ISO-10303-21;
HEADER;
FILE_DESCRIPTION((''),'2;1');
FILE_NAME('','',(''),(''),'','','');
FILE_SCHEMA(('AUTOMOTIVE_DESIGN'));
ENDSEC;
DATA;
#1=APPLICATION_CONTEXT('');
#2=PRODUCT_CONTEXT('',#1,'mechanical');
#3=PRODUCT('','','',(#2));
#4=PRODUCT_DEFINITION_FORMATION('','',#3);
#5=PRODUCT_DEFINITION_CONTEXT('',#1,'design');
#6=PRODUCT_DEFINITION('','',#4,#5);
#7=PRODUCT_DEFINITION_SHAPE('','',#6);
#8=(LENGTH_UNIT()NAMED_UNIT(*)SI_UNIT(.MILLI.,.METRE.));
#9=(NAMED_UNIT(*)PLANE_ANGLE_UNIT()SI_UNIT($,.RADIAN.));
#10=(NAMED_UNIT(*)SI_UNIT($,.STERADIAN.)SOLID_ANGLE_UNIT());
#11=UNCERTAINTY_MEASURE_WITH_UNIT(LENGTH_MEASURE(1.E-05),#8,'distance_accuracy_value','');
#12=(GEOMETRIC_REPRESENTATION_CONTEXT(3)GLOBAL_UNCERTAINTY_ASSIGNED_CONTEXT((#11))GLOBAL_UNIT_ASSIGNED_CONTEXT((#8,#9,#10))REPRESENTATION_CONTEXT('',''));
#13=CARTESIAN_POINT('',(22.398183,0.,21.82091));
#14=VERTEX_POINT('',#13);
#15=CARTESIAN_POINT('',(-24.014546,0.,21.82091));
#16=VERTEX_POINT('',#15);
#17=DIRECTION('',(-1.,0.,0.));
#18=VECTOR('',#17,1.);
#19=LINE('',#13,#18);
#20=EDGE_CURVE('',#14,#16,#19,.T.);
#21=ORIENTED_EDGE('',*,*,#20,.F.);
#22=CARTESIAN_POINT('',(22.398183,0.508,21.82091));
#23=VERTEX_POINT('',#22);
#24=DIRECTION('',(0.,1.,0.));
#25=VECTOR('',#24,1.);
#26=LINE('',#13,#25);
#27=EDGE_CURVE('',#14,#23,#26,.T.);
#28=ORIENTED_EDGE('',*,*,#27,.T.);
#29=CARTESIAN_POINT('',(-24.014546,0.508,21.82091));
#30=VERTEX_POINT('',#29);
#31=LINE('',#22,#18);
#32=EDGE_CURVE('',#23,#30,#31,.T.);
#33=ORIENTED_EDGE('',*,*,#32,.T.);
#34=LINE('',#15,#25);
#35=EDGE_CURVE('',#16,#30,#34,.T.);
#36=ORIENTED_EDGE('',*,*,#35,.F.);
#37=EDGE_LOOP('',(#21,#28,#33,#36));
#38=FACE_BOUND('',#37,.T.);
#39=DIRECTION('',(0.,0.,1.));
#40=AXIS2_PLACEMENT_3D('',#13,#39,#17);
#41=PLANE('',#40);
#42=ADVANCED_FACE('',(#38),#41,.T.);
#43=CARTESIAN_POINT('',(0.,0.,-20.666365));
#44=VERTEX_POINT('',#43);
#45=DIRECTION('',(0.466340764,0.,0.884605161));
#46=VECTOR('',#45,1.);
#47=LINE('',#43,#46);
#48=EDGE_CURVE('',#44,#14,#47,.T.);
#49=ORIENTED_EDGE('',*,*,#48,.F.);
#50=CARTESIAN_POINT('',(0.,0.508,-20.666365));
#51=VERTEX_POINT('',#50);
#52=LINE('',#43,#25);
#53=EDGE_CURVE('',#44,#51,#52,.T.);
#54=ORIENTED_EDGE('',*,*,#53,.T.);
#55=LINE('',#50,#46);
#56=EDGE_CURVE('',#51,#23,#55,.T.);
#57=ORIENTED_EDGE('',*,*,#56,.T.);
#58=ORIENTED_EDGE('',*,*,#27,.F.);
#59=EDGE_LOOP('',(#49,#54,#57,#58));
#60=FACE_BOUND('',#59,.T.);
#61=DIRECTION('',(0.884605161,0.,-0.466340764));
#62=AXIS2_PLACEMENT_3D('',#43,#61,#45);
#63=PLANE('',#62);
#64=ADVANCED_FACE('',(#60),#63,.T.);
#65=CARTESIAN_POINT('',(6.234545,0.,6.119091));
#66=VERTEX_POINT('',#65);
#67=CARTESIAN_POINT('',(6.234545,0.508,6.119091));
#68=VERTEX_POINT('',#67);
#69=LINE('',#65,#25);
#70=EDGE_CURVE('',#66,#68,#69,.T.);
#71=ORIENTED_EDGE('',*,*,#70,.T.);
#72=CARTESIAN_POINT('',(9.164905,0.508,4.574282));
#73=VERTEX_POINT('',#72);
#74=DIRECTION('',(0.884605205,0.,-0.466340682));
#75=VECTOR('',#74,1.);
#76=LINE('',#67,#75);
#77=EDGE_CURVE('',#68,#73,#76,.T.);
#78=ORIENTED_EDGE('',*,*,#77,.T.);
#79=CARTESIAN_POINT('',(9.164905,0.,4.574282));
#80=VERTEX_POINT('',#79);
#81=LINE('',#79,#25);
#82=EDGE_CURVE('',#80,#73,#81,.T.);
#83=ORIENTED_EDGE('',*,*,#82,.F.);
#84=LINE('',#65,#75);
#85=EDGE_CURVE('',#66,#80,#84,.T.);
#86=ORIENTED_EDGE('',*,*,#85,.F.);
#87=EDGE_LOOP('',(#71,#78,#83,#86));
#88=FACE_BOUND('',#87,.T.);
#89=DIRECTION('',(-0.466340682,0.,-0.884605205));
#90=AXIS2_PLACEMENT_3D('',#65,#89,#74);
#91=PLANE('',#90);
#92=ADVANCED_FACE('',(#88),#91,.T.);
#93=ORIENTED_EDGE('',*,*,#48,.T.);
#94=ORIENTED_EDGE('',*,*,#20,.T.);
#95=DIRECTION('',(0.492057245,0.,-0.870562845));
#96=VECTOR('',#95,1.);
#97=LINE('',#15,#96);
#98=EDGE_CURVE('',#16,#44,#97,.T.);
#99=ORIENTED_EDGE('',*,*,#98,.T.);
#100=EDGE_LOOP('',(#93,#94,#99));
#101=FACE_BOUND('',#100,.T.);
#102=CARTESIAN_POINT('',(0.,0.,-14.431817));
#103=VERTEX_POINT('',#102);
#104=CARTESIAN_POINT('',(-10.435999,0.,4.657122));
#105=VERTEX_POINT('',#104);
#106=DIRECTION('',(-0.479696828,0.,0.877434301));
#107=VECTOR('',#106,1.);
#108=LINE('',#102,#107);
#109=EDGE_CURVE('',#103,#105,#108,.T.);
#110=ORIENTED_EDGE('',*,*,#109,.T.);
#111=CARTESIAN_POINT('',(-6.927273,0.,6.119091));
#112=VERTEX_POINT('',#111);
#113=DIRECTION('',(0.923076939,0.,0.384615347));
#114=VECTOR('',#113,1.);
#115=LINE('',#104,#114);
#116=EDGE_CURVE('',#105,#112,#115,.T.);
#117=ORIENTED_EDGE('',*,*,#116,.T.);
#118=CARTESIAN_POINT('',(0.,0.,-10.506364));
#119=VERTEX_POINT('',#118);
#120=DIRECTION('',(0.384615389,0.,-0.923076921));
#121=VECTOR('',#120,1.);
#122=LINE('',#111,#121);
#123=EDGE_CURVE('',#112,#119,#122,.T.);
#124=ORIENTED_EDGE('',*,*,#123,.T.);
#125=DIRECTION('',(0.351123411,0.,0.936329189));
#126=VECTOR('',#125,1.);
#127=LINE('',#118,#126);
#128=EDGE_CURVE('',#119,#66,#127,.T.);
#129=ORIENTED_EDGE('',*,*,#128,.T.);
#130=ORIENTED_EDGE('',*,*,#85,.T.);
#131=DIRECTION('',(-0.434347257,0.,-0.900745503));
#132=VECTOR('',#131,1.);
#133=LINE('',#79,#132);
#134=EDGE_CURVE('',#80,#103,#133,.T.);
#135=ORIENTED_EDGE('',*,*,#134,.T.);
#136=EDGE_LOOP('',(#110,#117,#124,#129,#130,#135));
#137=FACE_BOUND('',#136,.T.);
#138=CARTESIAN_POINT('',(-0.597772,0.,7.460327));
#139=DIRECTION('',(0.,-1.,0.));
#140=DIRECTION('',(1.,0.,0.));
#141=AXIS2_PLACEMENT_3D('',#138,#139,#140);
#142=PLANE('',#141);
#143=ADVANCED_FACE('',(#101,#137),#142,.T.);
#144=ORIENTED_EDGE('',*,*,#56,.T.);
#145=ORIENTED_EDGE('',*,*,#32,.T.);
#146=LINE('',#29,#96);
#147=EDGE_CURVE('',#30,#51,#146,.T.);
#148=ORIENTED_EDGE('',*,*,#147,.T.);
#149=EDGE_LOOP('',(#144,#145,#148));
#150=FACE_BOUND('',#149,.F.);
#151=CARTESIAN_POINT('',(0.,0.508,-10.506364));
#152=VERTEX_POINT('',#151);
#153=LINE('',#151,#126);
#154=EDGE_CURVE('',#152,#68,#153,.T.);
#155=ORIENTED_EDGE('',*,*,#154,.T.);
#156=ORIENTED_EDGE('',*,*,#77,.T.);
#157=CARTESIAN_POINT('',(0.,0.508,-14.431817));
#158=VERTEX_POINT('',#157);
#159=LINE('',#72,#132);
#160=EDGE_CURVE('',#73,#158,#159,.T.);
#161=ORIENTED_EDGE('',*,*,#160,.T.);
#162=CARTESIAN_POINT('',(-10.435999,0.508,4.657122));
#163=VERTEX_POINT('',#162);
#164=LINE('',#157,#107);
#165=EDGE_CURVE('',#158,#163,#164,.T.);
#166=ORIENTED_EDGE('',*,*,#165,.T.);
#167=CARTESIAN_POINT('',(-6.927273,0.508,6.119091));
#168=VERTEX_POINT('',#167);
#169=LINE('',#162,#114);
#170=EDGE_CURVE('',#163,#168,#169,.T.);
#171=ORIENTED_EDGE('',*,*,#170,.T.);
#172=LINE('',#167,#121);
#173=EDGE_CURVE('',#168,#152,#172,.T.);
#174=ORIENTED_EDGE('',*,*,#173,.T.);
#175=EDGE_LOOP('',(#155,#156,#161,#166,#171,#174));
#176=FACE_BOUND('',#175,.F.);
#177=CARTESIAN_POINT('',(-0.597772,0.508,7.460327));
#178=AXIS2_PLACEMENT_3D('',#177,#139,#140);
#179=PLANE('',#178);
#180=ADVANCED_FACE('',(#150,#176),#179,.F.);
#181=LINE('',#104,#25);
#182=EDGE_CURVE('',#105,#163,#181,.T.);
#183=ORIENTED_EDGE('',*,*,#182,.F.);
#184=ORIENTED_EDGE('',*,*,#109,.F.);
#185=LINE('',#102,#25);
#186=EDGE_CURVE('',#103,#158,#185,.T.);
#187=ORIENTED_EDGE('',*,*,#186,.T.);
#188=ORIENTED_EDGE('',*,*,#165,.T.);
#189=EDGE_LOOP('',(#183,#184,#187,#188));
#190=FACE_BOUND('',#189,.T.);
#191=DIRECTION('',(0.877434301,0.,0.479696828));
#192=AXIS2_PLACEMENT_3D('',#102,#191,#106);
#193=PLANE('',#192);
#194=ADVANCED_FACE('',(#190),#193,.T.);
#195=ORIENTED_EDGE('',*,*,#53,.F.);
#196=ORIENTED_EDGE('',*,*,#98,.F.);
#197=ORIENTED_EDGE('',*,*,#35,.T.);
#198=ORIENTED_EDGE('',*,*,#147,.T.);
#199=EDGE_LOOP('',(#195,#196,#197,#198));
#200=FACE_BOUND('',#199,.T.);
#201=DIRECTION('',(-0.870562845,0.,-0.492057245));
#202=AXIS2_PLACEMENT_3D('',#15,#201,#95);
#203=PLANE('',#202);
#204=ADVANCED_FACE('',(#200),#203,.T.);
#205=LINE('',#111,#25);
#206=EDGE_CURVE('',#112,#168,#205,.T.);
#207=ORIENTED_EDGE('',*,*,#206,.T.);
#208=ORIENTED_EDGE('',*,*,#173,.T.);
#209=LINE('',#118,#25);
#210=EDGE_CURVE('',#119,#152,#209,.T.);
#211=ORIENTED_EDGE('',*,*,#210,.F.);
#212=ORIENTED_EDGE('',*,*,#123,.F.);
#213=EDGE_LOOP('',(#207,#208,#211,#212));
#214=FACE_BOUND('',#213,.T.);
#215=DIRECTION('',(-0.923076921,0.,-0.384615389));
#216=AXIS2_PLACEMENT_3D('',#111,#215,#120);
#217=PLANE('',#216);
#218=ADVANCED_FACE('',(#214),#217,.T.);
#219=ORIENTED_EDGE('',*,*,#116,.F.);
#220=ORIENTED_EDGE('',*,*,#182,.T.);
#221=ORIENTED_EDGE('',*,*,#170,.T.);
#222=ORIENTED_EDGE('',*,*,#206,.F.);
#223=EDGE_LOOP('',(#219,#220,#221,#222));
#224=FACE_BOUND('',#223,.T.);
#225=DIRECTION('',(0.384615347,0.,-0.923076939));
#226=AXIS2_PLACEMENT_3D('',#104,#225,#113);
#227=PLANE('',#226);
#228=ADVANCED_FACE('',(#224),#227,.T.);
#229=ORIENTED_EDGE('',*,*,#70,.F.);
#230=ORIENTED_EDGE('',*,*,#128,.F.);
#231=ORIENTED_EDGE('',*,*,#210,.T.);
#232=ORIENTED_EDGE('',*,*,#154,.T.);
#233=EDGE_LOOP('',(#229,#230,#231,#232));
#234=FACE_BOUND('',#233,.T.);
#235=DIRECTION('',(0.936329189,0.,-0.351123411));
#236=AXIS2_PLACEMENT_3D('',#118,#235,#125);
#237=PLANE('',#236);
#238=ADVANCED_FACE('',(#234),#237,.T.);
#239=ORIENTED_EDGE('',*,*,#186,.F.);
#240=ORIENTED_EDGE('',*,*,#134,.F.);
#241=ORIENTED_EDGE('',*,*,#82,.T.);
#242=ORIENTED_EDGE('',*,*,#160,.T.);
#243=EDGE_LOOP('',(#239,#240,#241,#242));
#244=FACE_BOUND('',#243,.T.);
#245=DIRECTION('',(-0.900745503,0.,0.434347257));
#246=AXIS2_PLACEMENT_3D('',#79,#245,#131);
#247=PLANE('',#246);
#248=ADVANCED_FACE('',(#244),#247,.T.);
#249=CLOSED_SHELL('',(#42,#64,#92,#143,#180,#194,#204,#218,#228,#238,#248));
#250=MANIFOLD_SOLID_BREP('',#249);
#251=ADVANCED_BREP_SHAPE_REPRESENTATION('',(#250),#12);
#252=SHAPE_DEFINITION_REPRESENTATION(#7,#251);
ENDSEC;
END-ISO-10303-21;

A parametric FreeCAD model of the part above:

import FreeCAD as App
import Part
import Sketcher
from FreeCAD import Vector
Q = App.Units.Quantity

doc = App.newDocument("Part")
body = doc.addObject("PartDesign::Body", "Body")

# Sketch on XZ plane
sketch1 = body.newObject("Sketcher::SketchObject", "Sketch")
sketch1.AttachmentSupport = (doc.getObject("XZ_Plane"), [""])
sketch1.MapMode = "FlatFace"
sketch1.addGeometry(Part.LineSegment(Vector(22.4, 21.8, 0), Vector(-24, 21.8, 0)), False)
sketch1.addGeometry(Part.LineSegment(Vector(-24, 21.8, 0), Vector(0, -20.7, 0)), False)
sketch1.addGeometry(Part.LineSegment(Vector(0, -20.7, 0), Vector(22.4, 21.8, 0)), False)
sketch1.addGeometry(Part.LineSegment(Vector(6.2, 6.1, 0), Vector(9.2, 4.6, 0)), False)
sketch1.addGeometry(Part.LineSegment(Vector(9.2, 4.6, 0), Vector(0, -14.4, 0)), False)
sketch1.addGeometry(Part.LineSegment(Vector(0, -14.4, 0), Vector(-10.4, 4.7, 0)), False)
sketch1.addGeometry(Part.LineSegment(Vector(-10.4, 4.7, 0), Vector(-6.9, 6.1, 0)), False)
sketch1.addGeometry(Part.LineSegment(Vector(-6.9, 6.1, 0), Vector(0, -10.5, 0)), False)
sketch1.addGeometry(Part.LineSegment(Vector(0, -10.5, 0), Vector(6.2, 6.1, 0)), False)
sketch1.addConstraint(Sketcher.Constraint("Coincident", 0, 2, 1, 1))
sketch1.addConstraint(Sketcher.Constraint("Coincident", 1, 2, 2, 1))
sketch1.addConstraint(Sketcher.Constraint("Coincident", 2, 2, 0, 1))
sketch1.addConstraint(Sketcher.Constraint("Coincident", 3, 2, 4, 1))
sketch1.addConstraint(Sketcher.Constraint("Coincident", 4, 2, 5, 1))
sketch1.addConstraint(Sketcher.Constraint("Coincident", 5, 2, 6, 1))
sketch1.addConstraint(Sketcher.Constraint("Coincident", 6, 2, 7, 1))
sketch1.addConstraint(Sketcher.Constraint("Coincident", 7, 2, 8, 1))
sketch1.addConstraint(Sketcher.Constraint("Coincident", 8, 2, 3, 1))
sketch1.addConstraint(Sketcher.Constraint("Horizontal", 0))
sketch1.addConstraint(Sketcher.Constraint("PointOnObject", 1, 2, -2))
sketch1.addConstraint(Sketcher.Constraint("PointOnObject", 4, 2, -2))
sketch1.addConstraint(Sketcher.Constraint("PointOnObject", 7, 2, -2))
sketch1.addConstraint(Sketcher.Constraint("Perpendicular", 2, 3))
sketch1.addConstraint(Sketcher.Constraint("Perpendicular", 6, 7))
sketch1.addConstraint(Sketcher.Constraint("Horizontal", 6, 2, 8, 2))
sketch1.addConstraint(Sketcher.Constraint("DistanceY", 1, 2, 7, 2, Q("0.4 in")))
sketch1.addConstraint(Sketcher.Constraint("DistanceX", 0, 2, 0, 1, 46.412729))
sketch1.addConstraint(Sketcher.Constraint("DistanceX", 5, 2, -1, 1, 10.435999))
sketch1.addConstraint(Sketcher.Constraint("DistanceY", 4, 2, 3, 2, 19.006099))
sketch1.addConstraint(Sketcher.Constraint("Distance", 2, 48.029649))
sketch1.addConstraint(Sketcher.Constraint("Distance", 3, 3.312619))
sketch1.addConstraint(Sketcher.Constraint("Distance", 4, 21.10041))
sketch1.addConstraint(Sketcher.Constraint("Distance", 6, 3.80112))
sketch1.addConstraint(Sketcher.Constraint("Distance", 7, 18.01091))
sketch1.addConstraint(Sketcher.Constraint("DistanceY", -1, 1, 0, 2, 21.82091))
sketch1.addConstraint(Sketcher.Constraint("DistanceY", -1, 1, 6, 2, 6.119091))
pad1 = body.newObject("PartDesign::Pad", "Pad")
pad1.Profile = sketch1
pad1.Length = Q("0.02 in")
pad1.Reversed = True

doc.recompute()
